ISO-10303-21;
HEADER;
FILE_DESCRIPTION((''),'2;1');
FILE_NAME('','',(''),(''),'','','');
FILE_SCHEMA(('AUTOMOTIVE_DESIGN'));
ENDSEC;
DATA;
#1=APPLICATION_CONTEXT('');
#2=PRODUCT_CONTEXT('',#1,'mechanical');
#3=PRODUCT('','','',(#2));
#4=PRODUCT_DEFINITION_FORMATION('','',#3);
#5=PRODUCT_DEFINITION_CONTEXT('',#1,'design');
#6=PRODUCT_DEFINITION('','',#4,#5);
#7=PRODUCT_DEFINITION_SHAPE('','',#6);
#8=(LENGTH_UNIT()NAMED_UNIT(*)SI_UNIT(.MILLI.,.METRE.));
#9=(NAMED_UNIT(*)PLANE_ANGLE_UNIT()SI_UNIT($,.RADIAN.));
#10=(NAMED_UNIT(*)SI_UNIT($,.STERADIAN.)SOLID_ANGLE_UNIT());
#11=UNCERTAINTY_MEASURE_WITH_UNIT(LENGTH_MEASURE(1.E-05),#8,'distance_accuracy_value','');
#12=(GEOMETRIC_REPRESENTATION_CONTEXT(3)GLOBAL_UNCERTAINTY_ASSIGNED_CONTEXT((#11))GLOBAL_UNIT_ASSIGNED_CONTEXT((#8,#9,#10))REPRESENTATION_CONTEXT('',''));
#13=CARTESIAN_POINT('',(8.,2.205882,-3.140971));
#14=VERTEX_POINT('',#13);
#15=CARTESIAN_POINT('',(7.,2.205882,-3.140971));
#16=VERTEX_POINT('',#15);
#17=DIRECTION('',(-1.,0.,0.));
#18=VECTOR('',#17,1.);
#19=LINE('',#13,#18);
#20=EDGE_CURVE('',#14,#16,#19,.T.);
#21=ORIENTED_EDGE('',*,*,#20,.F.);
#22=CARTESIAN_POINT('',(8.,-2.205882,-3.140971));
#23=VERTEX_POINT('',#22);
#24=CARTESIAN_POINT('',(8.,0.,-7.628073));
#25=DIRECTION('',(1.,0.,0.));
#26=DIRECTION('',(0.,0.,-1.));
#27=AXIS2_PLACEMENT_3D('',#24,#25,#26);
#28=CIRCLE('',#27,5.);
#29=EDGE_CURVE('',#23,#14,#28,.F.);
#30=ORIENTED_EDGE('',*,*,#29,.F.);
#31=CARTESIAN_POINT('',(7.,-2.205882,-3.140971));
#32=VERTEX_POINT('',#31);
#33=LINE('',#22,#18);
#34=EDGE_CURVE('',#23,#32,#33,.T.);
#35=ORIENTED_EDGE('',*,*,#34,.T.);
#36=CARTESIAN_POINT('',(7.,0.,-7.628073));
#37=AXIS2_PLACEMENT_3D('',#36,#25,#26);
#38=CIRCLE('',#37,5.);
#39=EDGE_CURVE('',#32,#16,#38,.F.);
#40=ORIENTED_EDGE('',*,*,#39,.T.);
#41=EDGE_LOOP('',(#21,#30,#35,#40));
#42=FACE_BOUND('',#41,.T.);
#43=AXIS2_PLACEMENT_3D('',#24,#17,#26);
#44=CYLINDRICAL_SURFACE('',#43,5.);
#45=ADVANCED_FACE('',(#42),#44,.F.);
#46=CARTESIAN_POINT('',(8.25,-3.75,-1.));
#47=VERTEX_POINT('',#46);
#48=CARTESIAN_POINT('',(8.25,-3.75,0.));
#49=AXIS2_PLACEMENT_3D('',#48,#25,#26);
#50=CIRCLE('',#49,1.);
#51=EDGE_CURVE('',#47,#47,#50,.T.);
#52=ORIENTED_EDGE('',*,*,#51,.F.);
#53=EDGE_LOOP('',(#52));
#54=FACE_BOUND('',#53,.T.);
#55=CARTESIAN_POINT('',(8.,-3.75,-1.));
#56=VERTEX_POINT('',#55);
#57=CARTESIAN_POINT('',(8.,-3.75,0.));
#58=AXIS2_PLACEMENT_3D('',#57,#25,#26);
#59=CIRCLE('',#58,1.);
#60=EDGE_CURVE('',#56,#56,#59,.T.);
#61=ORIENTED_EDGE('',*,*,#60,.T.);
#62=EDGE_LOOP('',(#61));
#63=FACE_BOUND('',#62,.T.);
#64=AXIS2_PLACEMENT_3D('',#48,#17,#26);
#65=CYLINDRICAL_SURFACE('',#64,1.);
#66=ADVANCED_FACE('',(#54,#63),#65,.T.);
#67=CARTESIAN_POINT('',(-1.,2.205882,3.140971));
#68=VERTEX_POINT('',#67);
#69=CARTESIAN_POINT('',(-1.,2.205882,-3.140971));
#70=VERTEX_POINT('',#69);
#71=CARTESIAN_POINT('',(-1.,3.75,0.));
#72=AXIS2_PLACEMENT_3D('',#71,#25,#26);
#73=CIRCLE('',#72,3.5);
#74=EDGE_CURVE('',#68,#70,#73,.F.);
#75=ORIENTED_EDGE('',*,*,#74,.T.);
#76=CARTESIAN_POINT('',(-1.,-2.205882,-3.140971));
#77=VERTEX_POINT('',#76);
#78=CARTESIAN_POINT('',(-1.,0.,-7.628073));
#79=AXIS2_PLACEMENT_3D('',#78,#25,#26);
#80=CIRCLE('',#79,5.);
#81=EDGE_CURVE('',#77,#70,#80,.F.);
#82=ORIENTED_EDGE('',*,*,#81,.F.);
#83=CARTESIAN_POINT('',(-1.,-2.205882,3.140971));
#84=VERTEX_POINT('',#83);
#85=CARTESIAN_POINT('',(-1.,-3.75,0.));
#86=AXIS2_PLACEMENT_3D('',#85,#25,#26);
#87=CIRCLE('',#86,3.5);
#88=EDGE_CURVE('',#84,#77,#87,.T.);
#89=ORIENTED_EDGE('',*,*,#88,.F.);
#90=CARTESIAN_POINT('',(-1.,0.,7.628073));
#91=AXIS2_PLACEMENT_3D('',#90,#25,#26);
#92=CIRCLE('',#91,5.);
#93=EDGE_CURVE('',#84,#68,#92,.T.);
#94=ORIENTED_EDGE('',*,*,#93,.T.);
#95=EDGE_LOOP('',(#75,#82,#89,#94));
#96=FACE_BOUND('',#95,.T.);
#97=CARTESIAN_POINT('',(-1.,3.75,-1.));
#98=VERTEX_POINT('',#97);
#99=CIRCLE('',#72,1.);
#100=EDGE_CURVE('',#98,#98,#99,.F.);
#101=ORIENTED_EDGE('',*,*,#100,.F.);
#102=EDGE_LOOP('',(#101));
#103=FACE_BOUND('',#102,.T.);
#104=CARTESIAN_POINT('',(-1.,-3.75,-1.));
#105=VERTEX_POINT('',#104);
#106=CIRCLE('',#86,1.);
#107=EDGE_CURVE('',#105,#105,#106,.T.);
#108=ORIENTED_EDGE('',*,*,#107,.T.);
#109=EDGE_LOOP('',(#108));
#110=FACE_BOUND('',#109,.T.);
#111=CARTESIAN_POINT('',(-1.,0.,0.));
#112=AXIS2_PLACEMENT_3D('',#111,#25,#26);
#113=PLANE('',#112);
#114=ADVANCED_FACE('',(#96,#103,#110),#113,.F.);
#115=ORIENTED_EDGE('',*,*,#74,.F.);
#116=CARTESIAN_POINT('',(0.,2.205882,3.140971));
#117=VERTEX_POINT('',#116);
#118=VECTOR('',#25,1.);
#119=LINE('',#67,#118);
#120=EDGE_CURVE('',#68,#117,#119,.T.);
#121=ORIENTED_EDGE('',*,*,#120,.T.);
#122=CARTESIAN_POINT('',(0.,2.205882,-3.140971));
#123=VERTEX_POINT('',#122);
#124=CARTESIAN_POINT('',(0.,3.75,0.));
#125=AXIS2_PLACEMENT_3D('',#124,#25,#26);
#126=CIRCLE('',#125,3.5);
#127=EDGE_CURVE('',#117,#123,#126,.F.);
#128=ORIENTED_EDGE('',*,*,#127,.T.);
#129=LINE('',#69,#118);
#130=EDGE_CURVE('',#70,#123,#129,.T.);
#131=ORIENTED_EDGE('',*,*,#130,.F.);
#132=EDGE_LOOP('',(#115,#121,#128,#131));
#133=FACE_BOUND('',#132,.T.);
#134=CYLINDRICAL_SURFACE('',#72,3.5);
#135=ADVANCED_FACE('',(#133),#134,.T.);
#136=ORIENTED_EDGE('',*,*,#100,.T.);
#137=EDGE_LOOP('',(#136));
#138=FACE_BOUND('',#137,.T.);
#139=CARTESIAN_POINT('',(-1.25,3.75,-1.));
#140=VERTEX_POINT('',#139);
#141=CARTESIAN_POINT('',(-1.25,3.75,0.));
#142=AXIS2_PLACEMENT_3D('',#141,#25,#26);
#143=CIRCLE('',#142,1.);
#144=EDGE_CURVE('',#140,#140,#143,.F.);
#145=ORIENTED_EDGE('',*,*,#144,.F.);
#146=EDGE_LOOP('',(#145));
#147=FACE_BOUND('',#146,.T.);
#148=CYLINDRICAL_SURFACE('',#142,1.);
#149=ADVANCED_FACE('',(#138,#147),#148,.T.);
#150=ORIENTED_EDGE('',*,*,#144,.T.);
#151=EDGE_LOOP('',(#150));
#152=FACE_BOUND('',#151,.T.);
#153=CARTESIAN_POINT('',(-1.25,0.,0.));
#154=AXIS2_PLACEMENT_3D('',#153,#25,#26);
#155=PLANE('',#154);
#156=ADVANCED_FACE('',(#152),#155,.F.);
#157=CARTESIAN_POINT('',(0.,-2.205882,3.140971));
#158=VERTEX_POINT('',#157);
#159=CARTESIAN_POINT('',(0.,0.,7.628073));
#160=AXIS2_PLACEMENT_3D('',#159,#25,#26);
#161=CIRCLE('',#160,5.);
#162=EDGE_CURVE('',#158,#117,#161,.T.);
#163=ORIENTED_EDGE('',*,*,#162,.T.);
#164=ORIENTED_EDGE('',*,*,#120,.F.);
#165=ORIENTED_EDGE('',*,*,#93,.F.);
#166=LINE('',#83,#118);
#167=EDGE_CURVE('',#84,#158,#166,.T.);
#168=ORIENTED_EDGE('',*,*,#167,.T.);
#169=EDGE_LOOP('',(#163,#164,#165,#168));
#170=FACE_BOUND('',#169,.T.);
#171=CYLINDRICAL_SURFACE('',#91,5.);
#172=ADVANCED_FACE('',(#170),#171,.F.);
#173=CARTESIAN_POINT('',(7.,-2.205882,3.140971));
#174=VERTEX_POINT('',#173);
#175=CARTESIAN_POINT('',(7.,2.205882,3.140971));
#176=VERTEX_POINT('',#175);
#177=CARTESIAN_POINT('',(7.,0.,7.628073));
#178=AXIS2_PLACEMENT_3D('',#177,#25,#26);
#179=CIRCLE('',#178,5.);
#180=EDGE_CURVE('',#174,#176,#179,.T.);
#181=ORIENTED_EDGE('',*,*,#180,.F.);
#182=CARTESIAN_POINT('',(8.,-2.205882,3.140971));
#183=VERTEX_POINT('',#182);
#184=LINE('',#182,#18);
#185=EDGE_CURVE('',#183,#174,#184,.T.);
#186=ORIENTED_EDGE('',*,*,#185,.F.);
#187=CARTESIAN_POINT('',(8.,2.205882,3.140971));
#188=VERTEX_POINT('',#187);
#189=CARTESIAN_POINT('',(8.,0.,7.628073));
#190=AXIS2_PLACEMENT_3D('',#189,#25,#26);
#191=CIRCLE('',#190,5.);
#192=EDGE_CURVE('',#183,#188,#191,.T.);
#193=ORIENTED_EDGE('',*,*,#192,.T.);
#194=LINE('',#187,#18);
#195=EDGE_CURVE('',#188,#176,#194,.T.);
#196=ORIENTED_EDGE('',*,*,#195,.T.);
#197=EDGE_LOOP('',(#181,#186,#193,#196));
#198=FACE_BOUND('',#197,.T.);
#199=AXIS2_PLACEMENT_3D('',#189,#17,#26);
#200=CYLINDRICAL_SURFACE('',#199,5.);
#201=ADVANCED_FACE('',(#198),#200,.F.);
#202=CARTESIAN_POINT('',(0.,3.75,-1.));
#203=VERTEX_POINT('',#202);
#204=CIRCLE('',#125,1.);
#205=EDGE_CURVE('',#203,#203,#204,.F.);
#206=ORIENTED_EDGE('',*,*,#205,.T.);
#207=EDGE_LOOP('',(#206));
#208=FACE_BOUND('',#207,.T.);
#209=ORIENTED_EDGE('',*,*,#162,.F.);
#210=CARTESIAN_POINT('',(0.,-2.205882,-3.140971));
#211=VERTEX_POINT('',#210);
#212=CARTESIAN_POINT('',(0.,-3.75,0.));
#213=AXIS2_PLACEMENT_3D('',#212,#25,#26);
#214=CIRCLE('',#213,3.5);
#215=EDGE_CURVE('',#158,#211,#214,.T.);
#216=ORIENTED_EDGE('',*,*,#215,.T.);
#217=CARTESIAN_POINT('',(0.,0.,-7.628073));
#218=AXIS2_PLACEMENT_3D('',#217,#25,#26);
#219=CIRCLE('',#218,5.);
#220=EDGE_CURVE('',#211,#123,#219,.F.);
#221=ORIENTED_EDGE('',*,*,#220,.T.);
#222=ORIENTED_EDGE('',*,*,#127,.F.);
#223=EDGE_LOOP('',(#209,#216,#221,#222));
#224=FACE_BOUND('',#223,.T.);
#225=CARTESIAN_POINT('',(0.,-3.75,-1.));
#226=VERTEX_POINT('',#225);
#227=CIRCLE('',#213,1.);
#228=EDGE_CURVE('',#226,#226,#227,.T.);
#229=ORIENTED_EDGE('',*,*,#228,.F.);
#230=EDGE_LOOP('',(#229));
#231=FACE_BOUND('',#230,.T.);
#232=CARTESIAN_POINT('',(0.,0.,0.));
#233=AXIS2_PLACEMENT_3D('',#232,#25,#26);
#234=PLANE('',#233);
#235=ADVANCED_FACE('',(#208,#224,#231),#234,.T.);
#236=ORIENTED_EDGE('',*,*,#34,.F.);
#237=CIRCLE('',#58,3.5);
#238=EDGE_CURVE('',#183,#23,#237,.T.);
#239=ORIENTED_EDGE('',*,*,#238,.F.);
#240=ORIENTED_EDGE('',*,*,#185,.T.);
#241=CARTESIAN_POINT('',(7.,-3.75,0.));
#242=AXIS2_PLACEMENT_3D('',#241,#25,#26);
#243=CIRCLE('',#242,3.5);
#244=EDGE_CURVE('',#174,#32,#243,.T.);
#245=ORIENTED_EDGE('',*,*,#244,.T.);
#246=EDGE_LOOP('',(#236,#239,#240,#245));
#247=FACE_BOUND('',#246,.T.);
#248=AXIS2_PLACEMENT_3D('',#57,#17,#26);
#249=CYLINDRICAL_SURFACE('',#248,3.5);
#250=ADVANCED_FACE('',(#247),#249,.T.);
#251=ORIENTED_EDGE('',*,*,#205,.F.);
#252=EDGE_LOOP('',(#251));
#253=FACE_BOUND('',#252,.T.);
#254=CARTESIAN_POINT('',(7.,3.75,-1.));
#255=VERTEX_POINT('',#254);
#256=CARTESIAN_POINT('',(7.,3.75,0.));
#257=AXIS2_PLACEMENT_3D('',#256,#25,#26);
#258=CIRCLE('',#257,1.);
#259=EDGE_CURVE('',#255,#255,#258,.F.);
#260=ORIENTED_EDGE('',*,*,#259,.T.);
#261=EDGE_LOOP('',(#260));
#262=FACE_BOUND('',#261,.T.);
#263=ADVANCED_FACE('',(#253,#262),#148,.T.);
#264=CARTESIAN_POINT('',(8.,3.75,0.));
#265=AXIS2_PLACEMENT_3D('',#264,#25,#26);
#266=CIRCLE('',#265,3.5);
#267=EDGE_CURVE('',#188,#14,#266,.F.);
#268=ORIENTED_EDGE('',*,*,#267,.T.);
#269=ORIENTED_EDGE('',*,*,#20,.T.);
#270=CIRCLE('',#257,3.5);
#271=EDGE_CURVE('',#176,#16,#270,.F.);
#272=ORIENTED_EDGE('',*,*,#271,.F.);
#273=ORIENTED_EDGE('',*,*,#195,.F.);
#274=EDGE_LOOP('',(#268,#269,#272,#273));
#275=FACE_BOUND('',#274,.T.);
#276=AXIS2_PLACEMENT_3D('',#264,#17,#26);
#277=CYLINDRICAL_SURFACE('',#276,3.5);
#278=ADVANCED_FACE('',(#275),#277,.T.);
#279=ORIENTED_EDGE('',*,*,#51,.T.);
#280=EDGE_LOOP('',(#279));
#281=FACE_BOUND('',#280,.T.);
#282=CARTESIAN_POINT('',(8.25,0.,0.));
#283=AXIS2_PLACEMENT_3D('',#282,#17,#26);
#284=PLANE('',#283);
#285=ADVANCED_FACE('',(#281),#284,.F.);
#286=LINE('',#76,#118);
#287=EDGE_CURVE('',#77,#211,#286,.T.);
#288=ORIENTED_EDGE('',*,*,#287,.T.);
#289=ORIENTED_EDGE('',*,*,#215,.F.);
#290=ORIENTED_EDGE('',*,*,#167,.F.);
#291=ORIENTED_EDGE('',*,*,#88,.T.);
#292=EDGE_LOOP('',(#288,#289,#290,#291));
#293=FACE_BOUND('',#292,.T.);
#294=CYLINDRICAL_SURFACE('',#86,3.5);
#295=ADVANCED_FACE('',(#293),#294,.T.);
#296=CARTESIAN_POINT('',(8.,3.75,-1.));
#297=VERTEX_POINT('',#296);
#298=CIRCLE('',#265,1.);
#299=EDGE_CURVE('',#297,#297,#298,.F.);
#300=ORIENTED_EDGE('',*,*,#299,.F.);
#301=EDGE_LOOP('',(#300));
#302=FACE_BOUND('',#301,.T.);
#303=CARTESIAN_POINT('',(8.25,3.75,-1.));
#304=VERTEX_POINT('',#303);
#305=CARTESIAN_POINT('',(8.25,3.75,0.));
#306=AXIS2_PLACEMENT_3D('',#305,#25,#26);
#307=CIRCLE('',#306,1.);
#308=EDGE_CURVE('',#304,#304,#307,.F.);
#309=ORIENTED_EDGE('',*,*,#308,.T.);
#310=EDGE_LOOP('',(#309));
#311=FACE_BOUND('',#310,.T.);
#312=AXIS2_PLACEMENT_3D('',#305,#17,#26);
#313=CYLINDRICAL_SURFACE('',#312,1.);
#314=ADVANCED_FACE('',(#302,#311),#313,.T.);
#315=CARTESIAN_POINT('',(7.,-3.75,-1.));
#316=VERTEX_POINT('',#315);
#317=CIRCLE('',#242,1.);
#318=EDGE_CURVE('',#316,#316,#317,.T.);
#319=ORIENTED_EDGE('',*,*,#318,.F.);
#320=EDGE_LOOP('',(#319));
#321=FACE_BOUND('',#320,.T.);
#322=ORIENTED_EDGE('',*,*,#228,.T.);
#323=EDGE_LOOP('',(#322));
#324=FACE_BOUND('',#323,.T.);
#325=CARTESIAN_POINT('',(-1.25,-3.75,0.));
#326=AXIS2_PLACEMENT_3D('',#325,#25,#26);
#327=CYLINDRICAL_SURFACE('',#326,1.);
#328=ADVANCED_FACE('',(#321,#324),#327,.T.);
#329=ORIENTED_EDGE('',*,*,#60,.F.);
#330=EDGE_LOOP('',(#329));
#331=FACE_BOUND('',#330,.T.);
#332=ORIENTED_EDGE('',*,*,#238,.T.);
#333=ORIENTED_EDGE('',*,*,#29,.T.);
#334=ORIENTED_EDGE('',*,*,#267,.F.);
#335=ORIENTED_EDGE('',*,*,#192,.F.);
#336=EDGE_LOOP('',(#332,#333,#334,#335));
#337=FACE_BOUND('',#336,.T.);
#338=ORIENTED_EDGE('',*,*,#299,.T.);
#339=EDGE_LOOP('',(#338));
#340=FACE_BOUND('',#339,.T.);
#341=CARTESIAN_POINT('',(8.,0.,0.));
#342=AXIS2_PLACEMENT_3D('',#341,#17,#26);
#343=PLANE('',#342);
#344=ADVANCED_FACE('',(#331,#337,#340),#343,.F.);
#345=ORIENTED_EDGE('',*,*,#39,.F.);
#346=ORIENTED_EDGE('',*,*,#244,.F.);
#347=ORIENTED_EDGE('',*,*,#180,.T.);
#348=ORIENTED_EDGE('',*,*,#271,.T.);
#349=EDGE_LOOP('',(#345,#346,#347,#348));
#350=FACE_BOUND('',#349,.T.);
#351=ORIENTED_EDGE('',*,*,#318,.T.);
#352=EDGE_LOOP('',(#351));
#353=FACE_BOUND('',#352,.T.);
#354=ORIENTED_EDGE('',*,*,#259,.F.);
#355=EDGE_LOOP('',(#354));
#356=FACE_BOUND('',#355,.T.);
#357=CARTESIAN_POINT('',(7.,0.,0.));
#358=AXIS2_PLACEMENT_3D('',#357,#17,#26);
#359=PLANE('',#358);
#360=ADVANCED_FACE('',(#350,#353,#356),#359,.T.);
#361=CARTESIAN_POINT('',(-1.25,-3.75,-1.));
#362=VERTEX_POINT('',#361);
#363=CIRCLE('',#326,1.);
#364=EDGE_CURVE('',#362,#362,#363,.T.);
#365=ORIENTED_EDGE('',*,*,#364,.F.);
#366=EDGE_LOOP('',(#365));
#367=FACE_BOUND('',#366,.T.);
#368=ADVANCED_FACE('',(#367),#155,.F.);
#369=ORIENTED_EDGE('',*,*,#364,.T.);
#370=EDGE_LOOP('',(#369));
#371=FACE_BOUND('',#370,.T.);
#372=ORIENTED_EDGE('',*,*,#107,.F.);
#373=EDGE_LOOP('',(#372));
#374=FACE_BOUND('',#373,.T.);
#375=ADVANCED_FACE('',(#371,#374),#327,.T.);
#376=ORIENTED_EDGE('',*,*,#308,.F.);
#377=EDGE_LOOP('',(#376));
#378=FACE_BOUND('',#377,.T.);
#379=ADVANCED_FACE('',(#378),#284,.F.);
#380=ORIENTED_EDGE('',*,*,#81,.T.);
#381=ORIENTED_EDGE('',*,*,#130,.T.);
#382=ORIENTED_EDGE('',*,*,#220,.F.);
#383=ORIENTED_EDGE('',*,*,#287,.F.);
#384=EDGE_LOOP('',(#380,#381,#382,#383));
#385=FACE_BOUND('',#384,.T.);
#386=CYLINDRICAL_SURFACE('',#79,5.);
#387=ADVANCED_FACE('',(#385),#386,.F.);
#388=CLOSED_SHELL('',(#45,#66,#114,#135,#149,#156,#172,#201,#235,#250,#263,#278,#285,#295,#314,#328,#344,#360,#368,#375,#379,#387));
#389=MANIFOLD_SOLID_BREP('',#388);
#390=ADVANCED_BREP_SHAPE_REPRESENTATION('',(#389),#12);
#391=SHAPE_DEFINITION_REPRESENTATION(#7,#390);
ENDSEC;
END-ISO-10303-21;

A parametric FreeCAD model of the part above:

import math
import FreeCAD as App
import Part
import Sketcher

V = App.Vector
Q = App.Units.Quantity

doc = App.newDocument("Part")
body = doc.addObject("PartDesign::Body", "Body")

# Sketch on YZ plane
sketch1 = doc.addObject("Sketcher::SketchObject", "Sketch")
body.addObject(sketch1)
sketch1.AttachmentSupport = (doc.YZ_Plane, [""])
sketch1.MapMode = "FlatFace"
sketch1.addGeometry(Part.ArcOfCircle(Part.Circle(V(-3.8, 0, 0), V(0, 0, 1), 3.5), math.radians(64), math.radians(296)), False)
sketch1.addGeometry(Part.ArcOfCircle(Part.Circle(V(0, -7.6, 0), V(0, 0, 1), 5), math.radians(64), math.radians(116)), False)
sketch1.addGeometry(Part.ArcOfCircle(Part.Circle(V(3.8, 0, 0), V(0, 0, 1), 3.5), math.radians(-116), math.radians(116)), False)
sketch1.addGeometry(Part.ArcOfCircle(Part.Circle(V(0, 7.6, 0), V(0, 0, 1), 5), math.radians(-116), math.radians(-64)), False)
sketch1.addGeometry(Part.Circle(V(-3.8, 0, 0), V(0, 0, 1), 1), False)
sketch1.addGeometry(Part.Circle(V(3.8, 0, 0), V(0, 0, 1), 1), False)
sketch1.addConstraint(Sketcher.Constraint("Tangent", 0, 2, 1, 2))
sketch1.addConstraint(Sketcher.Constraint("Tangent", 1, 1, 2, 1))
sketch1.addConstraint(Sketcher.Constraint("Tangent", 2, 2, 3, 2))
sketch1.addConstraint(Sketcher.Constraint("Tangent", 3, 1, 0, 1))
sketch1.addConstraint(Sketcher.Constraint("Coincident", 4, 3, 0, 3))
sketch1.addConstraint(Sketcher.Constraint("Coincident", 5, 3, 2, 3))
sketch1.addConstraint(Sketcher.Constraint("Equal", 0, 2))
sketch1.addConstraint(Sketcher.Constraint("Equal", 1, 3))
sketch1.addConstraint(Sketcher.Constraint("Equal", 4, 5))
sketch1.addConstraint(Sketcher.Constraint("Symmetric", 0, 3, 2, 3, -1, 1))
sketch1.addConstraint(Sketcher.Constraint("PointOnObject", 0, 3, -1))
sketch1.addConstraint(Sketcher.Constraint("Diameter", 4, Q("2 mm")))
sketch1.addConstraint(Sketcher.Constraint("Radius", 1, Q("5 mm")))
sketch1.addConstraint(Sketcher.Constraint("Radius", 0, Q("3.5 mm")))
sketch1.addConstraint(Sketcher.Constraint("DistanceX", 0, 3, 2, 3, Q("7.5 mm")))
pad1 = doc.addObject("PartDesign::Pad", "Pad")
body.addObject(pad1)
pad1.Profile = sketch1
pad1.Length = 1
pad1.Reversed = True

# Sketch on YZ plane
sketch2 = doc.addObject("Sketcher::SketchObject", "Sketch001")
body.addObject(sketch2)
sketch2.AttachmentSupport = (doc.YZ_Plane, [""])
sketch2.MapMode = "FlatFace"
sketch2.addGeometry(Part.Circle(V(-3.8, 0, 0), V(0, 0, 1), 1), False)
sketch2.addGeometry(Part.Circle(V(3.8, 0, 0), V(0, 0, 1), 1), False)
sketch2.addConstraint(Sketcher.Constraint("Equal", 0, 1))
sketch2.addConstraint(Sketcher.Constraint("Symmetric", 0, 3, 1, 3, -1, 1))
sketch2.addConstraint(Sketcher.Constraint("PointOnObject", 0, 3, -1))
sketch2.addConstraint(Sketcher.Constraint("Diameter", 0, Q("2 mm")))
sketch2.addConstraint(Sketcher.Constraint("DistanceX", 0, 3, 1, 3, Q("7.5 mm")))
pad2 = doc.addObject("PartDesign::Pad", "Pad001")
body.addObject(pad2)
pad2.Profile = sketch2
pad2.Type = "TwoLengths"
pad2.Length = 3.5
pad2.Length2 = 1.25
body2 = doc.addObject("PartDesign::Body", "Body001")
doc.recompute()

body2.BaseFeature = body
doc.recompute()

mirroring = doc.addObject("Part::Mirroring", "Mirroring")
mirroring.Source = body
mirroring.Base = V(3.5, 0, 0)
mirroring.Normal = V(1, 0, 0)
body3 = doc.addObject("PartDesign::Body", "Body002")
body3.BaseFeature = mirroring
boolean = doc.addObject("PartDesign::Boolean", "Boolean")
body2.addObject(boolean)
boolean.Type = "Fuse"
boolean.addObjects([body3])
doc.recompute()
mirroring.Visibility = False

doc.recompute()
